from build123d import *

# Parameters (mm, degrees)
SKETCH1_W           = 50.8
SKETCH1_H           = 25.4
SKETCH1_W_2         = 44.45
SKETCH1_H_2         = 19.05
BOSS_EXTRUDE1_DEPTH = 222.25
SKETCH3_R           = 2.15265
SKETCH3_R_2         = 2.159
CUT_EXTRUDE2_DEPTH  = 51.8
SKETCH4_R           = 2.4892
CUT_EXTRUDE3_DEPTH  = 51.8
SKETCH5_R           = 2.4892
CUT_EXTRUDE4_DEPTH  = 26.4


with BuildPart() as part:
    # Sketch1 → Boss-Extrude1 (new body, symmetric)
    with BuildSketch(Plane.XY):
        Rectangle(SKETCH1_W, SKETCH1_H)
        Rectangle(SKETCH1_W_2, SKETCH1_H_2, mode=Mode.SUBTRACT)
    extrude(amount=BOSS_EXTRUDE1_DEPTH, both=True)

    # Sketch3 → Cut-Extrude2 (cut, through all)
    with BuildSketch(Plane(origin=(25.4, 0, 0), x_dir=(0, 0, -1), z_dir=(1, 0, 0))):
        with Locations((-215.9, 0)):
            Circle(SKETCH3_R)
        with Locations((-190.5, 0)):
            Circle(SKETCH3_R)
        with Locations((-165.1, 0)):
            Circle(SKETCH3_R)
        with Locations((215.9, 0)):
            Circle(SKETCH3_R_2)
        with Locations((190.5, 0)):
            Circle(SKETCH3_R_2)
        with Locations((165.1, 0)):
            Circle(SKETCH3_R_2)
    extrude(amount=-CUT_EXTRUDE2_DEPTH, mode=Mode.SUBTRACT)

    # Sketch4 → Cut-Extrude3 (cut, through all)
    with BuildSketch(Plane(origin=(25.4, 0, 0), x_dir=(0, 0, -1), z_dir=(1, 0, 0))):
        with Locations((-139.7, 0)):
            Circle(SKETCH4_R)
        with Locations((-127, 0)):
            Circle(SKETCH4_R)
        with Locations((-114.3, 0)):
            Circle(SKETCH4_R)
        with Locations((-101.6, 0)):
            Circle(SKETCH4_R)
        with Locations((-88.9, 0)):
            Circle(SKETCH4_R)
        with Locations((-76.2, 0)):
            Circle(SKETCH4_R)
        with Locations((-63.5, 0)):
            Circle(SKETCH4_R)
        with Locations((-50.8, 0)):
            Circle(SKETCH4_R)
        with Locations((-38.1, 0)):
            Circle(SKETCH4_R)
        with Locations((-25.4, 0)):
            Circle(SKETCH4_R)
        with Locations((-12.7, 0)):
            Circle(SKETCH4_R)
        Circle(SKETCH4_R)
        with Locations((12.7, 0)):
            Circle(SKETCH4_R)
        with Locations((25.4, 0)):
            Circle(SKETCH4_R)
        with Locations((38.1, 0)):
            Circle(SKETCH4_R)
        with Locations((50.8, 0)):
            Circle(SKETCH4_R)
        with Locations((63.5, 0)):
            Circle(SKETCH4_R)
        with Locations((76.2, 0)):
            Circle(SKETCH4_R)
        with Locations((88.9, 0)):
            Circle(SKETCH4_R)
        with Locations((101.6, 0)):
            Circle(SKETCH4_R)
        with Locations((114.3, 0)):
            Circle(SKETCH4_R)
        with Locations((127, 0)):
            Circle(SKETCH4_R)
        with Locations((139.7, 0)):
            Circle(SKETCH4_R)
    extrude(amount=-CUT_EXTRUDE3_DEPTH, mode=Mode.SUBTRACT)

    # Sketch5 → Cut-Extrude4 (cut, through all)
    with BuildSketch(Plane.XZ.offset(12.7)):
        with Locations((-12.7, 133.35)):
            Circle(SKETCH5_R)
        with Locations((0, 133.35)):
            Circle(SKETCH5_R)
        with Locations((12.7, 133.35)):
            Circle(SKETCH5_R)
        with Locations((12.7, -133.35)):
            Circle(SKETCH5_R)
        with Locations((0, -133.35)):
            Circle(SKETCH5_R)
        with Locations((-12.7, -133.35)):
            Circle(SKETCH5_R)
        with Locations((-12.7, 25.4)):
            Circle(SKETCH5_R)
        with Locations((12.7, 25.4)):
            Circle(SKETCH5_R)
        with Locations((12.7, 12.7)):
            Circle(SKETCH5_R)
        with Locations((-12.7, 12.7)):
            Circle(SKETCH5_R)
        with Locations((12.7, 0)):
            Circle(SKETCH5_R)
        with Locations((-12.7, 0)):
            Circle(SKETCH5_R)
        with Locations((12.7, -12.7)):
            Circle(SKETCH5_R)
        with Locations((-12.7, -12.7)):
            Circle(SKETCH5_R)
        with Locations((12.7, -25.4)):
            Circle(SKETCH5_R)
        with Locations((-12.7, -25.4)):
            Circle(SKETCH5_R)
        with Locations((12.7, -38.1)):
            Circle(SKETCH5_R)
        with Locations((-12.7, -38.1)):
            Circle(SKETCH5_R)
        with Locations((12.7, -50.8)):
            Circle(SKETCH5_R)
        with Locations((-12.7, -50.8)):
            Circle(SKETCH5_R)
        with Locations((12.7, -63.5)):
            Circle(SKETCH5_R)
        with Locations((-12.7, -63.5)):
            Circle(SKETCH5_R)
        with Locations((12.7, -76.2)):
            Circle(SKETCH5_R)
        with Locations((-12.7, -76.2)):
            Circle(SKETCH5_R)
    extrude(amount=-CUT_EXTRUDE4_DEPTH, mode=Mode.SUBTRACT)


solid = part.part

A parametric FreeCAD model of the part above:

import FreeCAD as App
import Part
import Sketcher

V = App.Vector
Q = App.Units.Quantity


def add_polygon(sketch, points):
    """Adds a closed chain of lines whose ends are joined by coincident constraints."""
    first, n = sketch.GeometryCount, len(points)
    for a, b in zip(points, points[1:] + points[:1]):
        sketch.addGeometry(Part.LineSegment(App.Vector(*a, 0), App.Vector(*b, 0)), False)
    for i in range(n):
        sketch.addConstraint(Sketcher.Constraint("Coincident", first + i, 2, first + (i + 1) % n, 1))

doc = App.newDocument("Part")
params = doc.addObject("Spreadsheet::Sheet", "Params")
for row, (alias, value) in enumerate([
    ("sketch1_width", "2 in"),
    ("sketch1_height", "1 in"),
    ("sketch1_width2", "1.75 in"),
    ("sketch1_height2", "0.75 in"),
    ("pad1_length", "17.5 in"),
    ("sketch2_diameter", "0.17 in"),
    ("sketch3_diameter", "0.196 in"),
    ("sketch4_diameter", "0.196 in"),
], start=1):
    params.set(f"A{row}", alias)
    params.set(f"B{row}", "=" + value)
    params.setAlias(f"B{row}", alias)

body = doc.addObject("PartDesign::Body", "Body")

# Sketch on XY plane
sketch1 = body.newObject("Sketcher::SketchObject", "Sketch")
sketch1.AttachmentSupport = (doc.getObject("XY_Plane"), [""])
sketch1.MapMode = "FlatFace"
add_polygon(sketch1, [(-25.4, 12.7), (-25.4, -12.7), (25.4, -12.7), (25.4, 12.7)])  # lines 0-3
add_polygon(sketch1, [(22.225, -9.525), (-22.225, -9.525), (-22.225, 9.525), (22.225, 9.525)])  # lines 4-7
sketch1.addConstraint([
    Sketcher.Constraint("Vertical", 0),
    Sketcher.Constraint("Horizontal", 1),
    Sketcher.Constraint("Vertical", 2),
    Sketcher.Constraint("Horizontal", 3),
    Sketcher.Constraint("Horizontal", 4),
    Sketcher.Constraint("Vertical", 5),
    Sketcher.Constraint("Horizontal", 6),
    Sketcher.Constraint("Vertical", 7),
    Sketcher.Constraint("Symmetric", 0, 2, 2, 2, -1, 1),
    Sketcher.Constraint("Symmetric", 4, 2, 6, 2, -1, 1),
    Sketcher.Constraint("DistanceX", 1, 1, 1, 2, Q("2 in")),
    Sketcher.Constraint("DistanceY", 0, 2, 0, 1, Q("1 in")),
    Sketcher.Constraint("DistanceX", 4, 2, 4, 1, Q("1.75 in")),
    Sketcher.Constraint("DistanceY", 5, 1, 5, 2, Q("0.75 in")),
])
sketch1.setExpression("Constraints[18]", "Params.sketch1_width")
sketch1.setExpression("Constraints[19]", "Params.sketch1_height")
sketch1.setExpression("Constraints[20]", "Params.sketch1_width2")
sketch1.setExpression("Constraints[21]", "Params.sketch1_height2")
pad1 = body.newObject("PartDesign::Pad", "Pad")
pad1.Profile = sketch1
pad1.setExpression("Length", "Params.pad1_length")
pad1.Midplane = True

# Sketch on YZ plane
sketch2 = body.newObject("Sketcher::SketchObject", "Sketch001")
sketch2.AttachmentSupport = (doc.getObject("YZ_Plane"), [""])
sketch2.MapMode = "FlatFace"
sketch2.AttachmentOffset = App.Placement(V(0, 0, 1 * 25.4), App.Rotation())
sketch2.addGeometry([
    Part.Circle(V(0, 215.9, 0), V(0, 0, 1), 2.15265),  # 0
    Part.Circle(V(0, 190.5, 0), V(0, 0, 1), 2.15265),  # 1
    Part.Circle(V(0, 165.1, 0), V(0, 0, 1), 2.15265),  # 2
    Part.Circle(V(0, -215.9, 0), V(0, 0, 1), 2.159),  # 3
    Part.Circle(V(0, -190.5, 0), V(0, 0, 1), 2.159),  # 4
    Part.Circle(V(0, -165.1, 0), V(0, 0, 1), 2.159),  # 5
], False)
sketch2.addConstraint([
    Sketcher.Constraint("Equal", 0, 1),
    Sketcher.Constraint("Equal", 1, 2),
    Sketcher.Constraint("Equal", 3, 4),
    Sketcher.Constraint("Equal", 4, 5),
    Sketcher.Constraint("Symmetric", 0, 3, 3, 3, -1, 1),
    Sketcher.Constraint("Symmetric", 1, 3, 4, 3, -1, 1),
    Sketcher.Constraint("Symmetric", 2, 3, 5, 3, -1, 1),
    Sketcher.Constraint("PointOnObject", 0, 3, -2),
    Sketcher.Constraint("PointOnObject", 1, 3, -2),
    Sketcher.Constraint("PointOnObject", 2, 3, -2),
    Sketcher.Constraint("Diameter", 3, Q("0.17 in")),
    Sketcher.Constraint("DistanceY", 1, 3, 0, 3, Q("1 in")),
    Sketcher.Constraint("DistanceY", 2, 3, 1, 3, Q("1 in")),
    Sketcher.Constraint("DistanceY", 3, 3, 2, 3, Q("15 in")),
    Sketcher.Constraint("Diameter", 0, Q("0.1695 in")),
])
sketch2.setExpression("Constraints[10]", "Params.sketch2_diameter")
pocket1 = body.newObject("PartDesign::Pocket", "Pocket")
pocket1.Profile = sketch2
pocket1.Type = "ThroughAll"

# Sketch on YZ plane
sketch3 = body.newObject("Sketcher::SketchObject", "Sketch002")
sketch3.AttachmentSupport = (doc.getObject("YZ_Plane"), [""])
sketch3.MapMode = "FlatFace"
sketch3.AttachmentOffset = App.Placement(V(0, 0, 1 * 25.4), App.Rotation())
sketch3.addGeometry([
    Part.Circle(V(0, 139.7, 0), V(0, 0, 1), 2.4892),  # 0
    Part.Circle(V(0, 127, 0), V(0, 0, 1), 2.4892),  # 1
    Part.Circle(V(0, 114.3, 0), V(0, 0, 1), 2.4892),  # 2
    Part.Circle(V(0, 101.6, 0), V(0, 0, 1), 2.4892),  # 3
    Part.Circle(V(0, 88.9, 0), V(0, 0, 1), 2.4892),  # 4
    Part.Circle(V(0, 76.2, 0), V(0, 0, 1), 2.4892),  # 5
    Part.Circle(V(0, 63.5, 0), V(0, 0, 1), 2.4892),  # 6
    Part.Circle(V(0, 50.8, 0), V(0, 0, 1), 2.4892),  # 7
    Part.Circle(V(0, 38.1, 0), V(0, 0, 1), 2.4892),  # 8
    Part.Circle(V(0, 25.4, 0), V(0, 0, 1), 2.4892),  # 9
    Part.Circle(V(0, 12.7, 0), V(0, 0, 1), 2.4892),  # 10
    Part.Circle(V(0, 0, 0), V(0, 0, 1), 2.4892),  # 11
    Part.Circle(V(0, -12.7, 0), V(0, 0, 1), 2.4892),  # 12
    Part.Circle(V(0, -25.4, 0), V(0, 0, 1), 2.4892),  # 13
    Part.Circle(V(0, -38.1, 0), V(0, 0, 1), 2.4892),  # 14
    Part.Circle(V(0, -50.8, 0), V(0, 0, 1), 2.4892),  # 15
    Part.Circle(V(0, -63.5, 0), V(0, 0, 1), 2.4892),  # 16
    Part.Circle(V(0, -76.2, 0), V(0, 0, 1), 2.4892),  # 17
    Part.Circle(V(0, -88.9, 0), V(0, 0, 1), 2.4892),  # 18
    Part.Circle(V(0, -101.6, 0), V(0, 0, 1), 2.4892),  # 19
    Part.Circle(V(0, -114.3, 0), V(0, 0, 1), 2.4892),  # 20
    Part.Circle(V(0, -127, 0), V(0, 0, 1), 2.4892),  # 21
    Part.Circle(V(0, -139.7, 0), V(0, 0, 1), 2.4892),  # 22
], False)
sketch3.addConstraint([
    Sketcher.Constraint("Coincident", 11, 3, -1, 1),
    Sketcher.Constraint("Equal", 0, 1),
    Sketcher.Constraint("Equal", 1, 2),
    Sketcher.Constraint("Equal", 2, 3),
    Sketcher.Constraint("Equal", 3, 4),
    Sketcher.Constraint("Equal", 4, 5),
    Sketcher.Constraint("Equal", 5, 6),
    Sketcher.Constraint("Equal", 6, 7),
    Sketcher.Constraint("Equal", 7, 8),
    Sketcher.Constraint("Equal", 8, 9),
    Sketcher.Constraint("Equal", 9, 10),
    Sketcher.Constraint("Equal", 10, 11),
    Sketcher.Constraint("Equal", 11, 12),
    Sketcher.Constraint("Equal", 12, 13),
    Sketcher.Constraint("Equal", 13, 14),
    Sketcher.Constraint("Equal", 14, 15),
    Sketcher.Constraint("Equal", 15, 16),
    Sketcher.Constraint("Equal", 16, 17),
    Sketcher.Constraint("Equal", 17, 18),
    Sketcher.Constraint("Equal", 18, 19),
    Sketcher.Constraint("Equal", 19, 20),
    Sketcher.Constraint("Equal", 20, 21),
    Sketcher.Constraint("Equal", 21, 22),
    Sketcher.Constraint("Symmetric", 10, 3, 12, 3, -1, 1),
    Sketcher.Constraint("Symmetric", 9, 3, 13, 3, -1, 1),
    Sketcher.Constraint("Symmetric", 8, 3, 14, 3, -1, 1),
    Sketcher.Constraint("Symmetric", 7, 3, 15, 3, -1, 1),
    Sketcher.Constraint("Symmetric", 6, 3, 16, 3, -1, 1),
    Sketcher.Constraint("Symmetric", 5, 3, 17, 3, -1, 1),
    Sketcher.Constraint("Symmetric", 4, 3, 18, 3, -1, 1),
    Sketcher.Constraint("Symmetric", 3, 3, 19, 3, -1, 1),
    Sketcher.Constraint("Symmetric", 2, 3, 20, 3, -1, 1),
    Sketcher.Constraint("Symmetric", 1, 3, 21, 3, -1, 1),
    Sketcher.Constraint("Symmetric", 0, 3, 22, 3, -1, 1),
    Sketcher.Constraint("PointOnObject", 0, 3, -2),
    Sketcher.Constraint("PointOnObject", 1, 3, -2),
    Sketcher.Constraint("PointOnObject", 2, 3, -2),
    Sketcher.Constraint("PointOnObject", 3, 3, -2),
    Sketcher.Constraint("PointOnObject", 4, 3, -2),
    Sketcher.Constraint("PointOnObject", 5, 3, -2),
    Sketcher.Constraint("PointOnObject", 6, 3, -2),
    Sketcher.Constraint("PointOnObject", 7, 3, -2),
    Sketcher.Constraint("PointOnObject", 8, 3, -2),
    Sketcher.Constraint("PointOnObject", 9, 3, -2),
    Sketcher.Constraint("PointOnObject", 10, 3, -2),
    Sketcher.Constraint("Diameter", 0, Q("0.196 in")),
    Sketcher.Constraint("DistanceY", -1, 1, 1, 3, Q("5 in")),
    Sketcher.Constraint("DistanceY", -1, 1, 3, 3, Q("4 in")),
    Sketcher.Constraint("DistanceY", -1, 1, 5, 3, Q("3 in")),
    Sketcher.Constraint("DistanceY", -1, 1, 7, 3, Q("2 in")),
    Sketcher.Constraint("DistanceY", -1, 1, 9, 3, Q("1 in")),
    Sketcher.Constraint("DistanceY", 2, 3, 0, 3, Q("1 in")),
    Sketcher.Constraint("DistanceY", 4, 3, 2, 3, Q("1 in")),
    Sketcher.Constraint("DistanceY", 6, 3, 4, 3, Q("1 in")),
    Sketcher.Constraint("DistanceY", 8, 3, 6, 3, Q("1 in")),
    Sketcher.Constraint("DistanceY", 10, 3, 8, 3, Q("1 in")),
    Sketcher.Constraint("DistanceY", 12, 3, 10, 3, Q("1 in")),
])
sketch3.setExpression("Constraints[45]", "Params.sketch3_diameter")
pocket2 = body.newObject("PartDesign::Pocket", "Pocket001")
pocket2.Profile = sketch3
pocket2.Type = "ThroughAll"

# Sketch on XZ plane
sketch4 = body.newObject("Sketcher::SketchObject", "Sketch003")
sketch4.AttachmentSupport = (doc.getObject("XZ_Plane"), [""])
sketch4.MapMode = "FlatFace"
sketch4.AttachmentOffset = App.Placement(V(0, 0, 0.5 * 25.4), App.Rotation())
sketch4.addGeometry([
    Part.Circle(V(-12.7, 133.35, 0), V(0, 0, 1), 2.4892),  # 0
    Part.Circle(V(0, 133.35, 0), V(0, 0, 1), 2.4892),  # 1
    Part.Circle(V(12.7, 133.35, 0), V(0, 0, 1), 2.4892),  # 2
    Part.Circle(V(12.7, -133.35, 0), V(0, 0, 1), 2.4892),  # 3
    Part.Circle(V(0, -133.35, 0), V(0, 0, 1), 2.4892),  # 4
    Part.Circle(V(-12.7, -133.35, 0), V(0, 0, 1), 2.4892),  # 5
    Part.Circle(V(-12.7, 25.4, 0), V(0, 0, 1), 2.4892),  # 6
    Part.Circle(V(12.7, 25.4, 0), V(0, 0, 1), 2.4892),  # 7
    Part.Circle(V(12.7, 12.7, 0), V(0, 0, 1), 2.4892),  # 8
    Part.Circle(V(-12.7, 12.7, 0), V(0, 0, 1), 2.4892),  # 9
    Part.Circle(V(12.7, 0, 0), V(0, 0, 1), 2.4892),  # 10
    Part.Circle(V(-12.7, 0, 0), V(0, 0, 1), 2.4892),  # 11
    Part.Circle(V(12.7, -12.7, 0), V(0, 0, 1), 2.4892),  # 12
    Part.Circle(V(-12.7, -12.7, 0), V(0, 0, 1), 2.4892),  # 13
    Part.Circle(V(12.7, -25.4, 0), V(0, 0, 1), 2.4892),  # 14
    Part.Circle(V(-12.7, -25.4, 0), V(0, 0, 1), 2.4892),  # 15
    Part.Circle(V(12.7, -38.1, 0), V(0, 0, 1), 2.4892),  # 16
    Part.Circle(V(-12.7, -38.1, 0), V(0, 0, 1), 2.4892),  # 17
    Part.Circle(V(12.7, -50.8, 0), V(0, 0, 1), 2.4892),  # 18
    Part.Circle(V(-12.7, -50.8, 0), V(0, 0, 1), 2.4892),  # 19
    Part.Circle(V(12.7, -63.5, 0), V(0, 0, 1), 2.4892),  # 20
    Part.Circle(V(-12.7, -63.5, 0), V(0, 0, 1), 2.4892),  # 21
    Part.Circle(V(12.7, -76.2, 0), V(0, 0, 1), 2.4892),  # 22
    Part.Circle(V(-12.7, -76.2, 0), V(0, 0, 1), 2.4892),  # 23
], False)
sketch4.addConstraint([
    Sketcher.Constraint("Equal", 0, 1),
    Sketcher.Constraint("Equal", 1, 2),
    Sketcher.Constraint("Equal", 2, 3),
    Sketcher.Constraint("Equal", 3, 4),
    Sketcher.Constraint("Equal", 4, 5),
    Sketcher.Constraint("Equal", 5, 6),
    Sketcher.Constraint("Equal", 6, 7),
    Sketcher.Constraint("Equal", 7, 8),
    Sketcher.Constraint("Equal", 8, 9),
    Sketcher.Constraint("Equal", 9, 10),
    Sketcher.Constraint("Equal", 10, 11),
    Sketcher.Constraint("Equal", 11, 12),
    Sketcher.Constraint("Equal", 12, 13),
    Sketcher.Constraint("Equal", 13, 14),
    Sketcher.Constraint("Equal", 14, 15),
    Sketcher.Constraint("Equal", 15, 16),
    Sketcher.Constraint("Equal", 16, 17),
    Sketcher.Constraint("Equal", 17, 18),
    Sketcher.Constraint("Equal", 18, 19),
    Sketcher.Constraint("Equal", 19, 20),
    Sketcher.Constraint("Equal", 20, 21),
    Sketcher.Constraint("Equal", 21, 22),
    Sketcher.Constraint("Equal", 22, 23),
    Sketcher.Constraint("Symmetric", 0, 3, 3, 3, -1, 1),
    Sketcher.Constraint("Symmetric", 1, 3, 4, 3, -1, 1),
    Sketcher.Constraint("Symmetric", 2, 3, 5, 3, -1, 1),
    Sketcher.Constraint("Symmetric", 10, 3, 11, 3, -1, 1),
    Sketcher.Constraint("Symmetric", 9, 3, 12, 3, -1, 1),
    Sketcher.Constraint("Symmetric", 8, 3, 13, 3, -1, 1),
    Sketcher.Constraint("Symmetric", 6, 3, 14, 3, -1, 1),
    Sketcher.Constraint("Symmetric", 7, 3, 15, 3, -1, 1),
    Sketcher.Constraint("Symmetric", 0, 3, 2, 3, -2),
    Sketcher.Constraint("Symmetric", 6, 3, 7, 3, -2),
    Sketcher.Constraint("Symmetric", 8, 3, 9, 3, -2),
    Sketcher.Constraint("Symmetric", 16, 3, 17, 3, -2),
    Sketcher.Constraint("Symmetric", 18, 3, 19, 3, -2),
    Sketcher.Constraint("Symmetric", 20, 3, 21, 3, -2),
    Sketcher.Constraint("Symmetric", 22, 3, 23, 3, -2),
    Sketcher.Constraint("PointOnObject", 1, 3, -2),
    Sketcher.Constraint("PointOnObject", 10, 3, -1),
    Sketcher.Constraint("Horizontal", 0, 3, 1, 3),
    Sketcher.Constraint("Vertical", 5, 3, 6, 3),
    Sketcher.Constraint("Vertical", 7, 3, 8, 3),
    Sketcher.Constraint("Vertical", 8, 3, 10, 3),
    Sketcher.Constraint("Vertical", 14, 3, 16, 3),
    Sketcher.Constraint("Vertical", 16, 3, 18, 3),
    Sketcher.Constraint("Vertical", 18, 3, 20, 3),
    Sketcher.Constraint("Vertical", 20, 3, 22, 3),
    Sketcher.Constraint("Diameter", 0, Q("0.196 in")),
    Sketcher.Constraint("DistanceY", -1, 1, 6, 3, Q("1 in")),
    Sketcher.Constraint("DistanceY", 18, 3, -1, 1, Q("2 in")),
    Sketcher.Constraint("DistanceY", 22, 3, -1, 1, Q("3 in")),
    Sketcher.Constraint("DistanceX", 0, 3, 2, 3, Q("1 in")),
    Sketcher.Constraint("DistanceY", 12, 3, 8, 3, Q("1 in")),
    Sketcher.Constraint("DistanceY", 16, 3, 12, 3, Q("1 in")),
    Sketcher.Constraint("DistanceY", 20, 3, 16, 3, Q("1 in")),
    Sketcher.Constraint("DistanceY", 3, 3, 2, 3, Q("10.5 in")),
])
sketch4.setExpression("Constraints[48]", "Params.sketch4_diameter")
pocket3 = body.newObject("PartDesign::Pocket", "Pocket002")
pocket3.Profile = sketch4
pocket3.Type = "ThroughAll"

doc.recompute()
